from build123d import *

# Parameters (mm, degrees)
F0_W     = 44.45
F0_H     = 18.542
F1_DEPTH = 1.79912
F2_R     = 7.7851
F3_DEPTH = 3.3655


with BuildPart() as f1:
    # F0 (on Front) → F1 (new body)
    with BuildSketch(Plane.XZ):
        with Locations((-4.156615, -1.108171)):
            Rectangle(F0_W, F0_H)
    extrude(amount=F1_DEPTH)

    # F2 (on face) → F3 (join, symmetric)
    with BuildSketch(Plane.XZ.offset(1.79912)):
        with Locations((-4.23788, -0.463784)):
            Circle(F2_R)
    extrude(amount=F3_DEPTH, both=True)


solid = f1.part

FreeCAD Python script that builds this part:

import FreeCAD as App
import Part
import Sketcher
Q = App.Units.Quantity

doc = App.newDocument("Part")
params = doc.addObject("Spreadsheet::Sheet", "Params")
for row, (alias, value) in enumerate([
    ("sketch1_width", "1.75 in"),
    ("sketch1_height", "0.73 in"),
    ("pad1_length", "1.79912 mm"),
    ("sketch2_diameter", "0.613 in"),
    ("pad2_length", "0.265 in"),
], start=1):
    params.set(f"A{row}", alias)
    params.set(f"B{row}", "=" + value)
    params.setAlias(f"B{row}", alias)

body = doc.addObject("PartDesign::Body", "Body")

# Sketch on XZ plane
sketch1 = doc.addObject("Sketcher::SketchObject", "Sketch")
body.addObject(sketch1)
sketch1.AttachmentSupport = (doc.XZ_Plane, [""])
sketch1.MapMode = "FlatFace"
sketch1.addGeometry([
    Part.LineSegment(App.Vector(-26.381615, 8.162829, 0), App.Vector(-26.381615, -10.379171, 0)),
    Part.LineSegment(App.Vector(-26.381615, -10.379171, 0), App.Vector(18.068385, -10.379171, 0)),
    Part.LineSegment(App.Vector(18.068385, -10.379171, 0), App.Vector(18.068385, 8.162829, 0)),
    Part.LineSegment(App.Vector(18.068385, 8.162829, 0), App.Vector(-26.381615, 8.162829, 0)),
], False)
sketch1.addConstraint([
    Sketcher.Constraint("Coincident", 0, 2, 1, 1),
    Sketcher.Constraint("Coincident", 1, 2, 2, 1),
    Sketcher.Constraint("Coincident", 2, 2, 3, 1),
    Sketcher.Constraint("Coincident", 3, 2, 0, 1),
    Sketcher.Constraint("Vertical", 0),
    Sketcher.Constraint("Horizontal", 1),
    Sketcher.Constraint("Vertical", 2),
    Sketcher.Constraint("Horizontal", 3),
    Sketcher.Constraint("DistanceX", 1, 1, 1, 2, Q("1.75 in")),
    Sketcher.Constraint("DistanceY", 0, 2, 0, 1, Q("0.73 in")),
    Sketcher.Constraint("DistanceY", 0, 2, -1, 1, 10.379171),
    Sketcher.Constraint("DistanceX", 0, 2, -1, 1, 26.381615),
])
sketch1.setExpression("Constraints[8]", "Params.sketch1_width")
sketch1.setExpression("Constraints[9]", "Params.sketch1_height")
pad1 = doc.addObject("PartDesign::Pad", "Pad")
body.addObject(pad1)
pad1.Profile = sketch1
pad1.setExpression("Length", "Params.pad1_length")

# Sketch on XZ plane
sketch2 = doc.addObject("Sketcher::SketchObject", "Sketch001")
body.addObject(sketch2)
sketch2.AttachmentSupport = (doc.XZ_Plane, [""])
sketch2.MapMode = "FlatFace"
sketch2.AttachmentOffset = App.Placement(App.Vector(0, 0, 1.79912), App.Rotation())
sketch2.addGeometry(Part.Circle(App.Vector(-4.23788, -0.463784, 0), App.Vector(0, 0, 1), 7.7851), False)
sketch2.addConstraint([
    Sketcher.Constraint("Diameter", 0, Q("0.613 in")),
    Sketcher.Constraint("DistanceX", 0, 3, -1, 1, 4.23788),
    Sketcher.Constraint("DistanceY", 0, 3, -1, 1, 0.463784),
])
sketch2.setExpression("Constraints[0]", "Params.sketch2_diameter")
pad2 = doc.addObject("PartDesign::Pad", "Pad001")
body.addObject(pad2)
pad2.Profile = sketch2
pad2.setExpression("Length", "Params.pad2_length")
pad2.Midplane = True

doc.recompute()
